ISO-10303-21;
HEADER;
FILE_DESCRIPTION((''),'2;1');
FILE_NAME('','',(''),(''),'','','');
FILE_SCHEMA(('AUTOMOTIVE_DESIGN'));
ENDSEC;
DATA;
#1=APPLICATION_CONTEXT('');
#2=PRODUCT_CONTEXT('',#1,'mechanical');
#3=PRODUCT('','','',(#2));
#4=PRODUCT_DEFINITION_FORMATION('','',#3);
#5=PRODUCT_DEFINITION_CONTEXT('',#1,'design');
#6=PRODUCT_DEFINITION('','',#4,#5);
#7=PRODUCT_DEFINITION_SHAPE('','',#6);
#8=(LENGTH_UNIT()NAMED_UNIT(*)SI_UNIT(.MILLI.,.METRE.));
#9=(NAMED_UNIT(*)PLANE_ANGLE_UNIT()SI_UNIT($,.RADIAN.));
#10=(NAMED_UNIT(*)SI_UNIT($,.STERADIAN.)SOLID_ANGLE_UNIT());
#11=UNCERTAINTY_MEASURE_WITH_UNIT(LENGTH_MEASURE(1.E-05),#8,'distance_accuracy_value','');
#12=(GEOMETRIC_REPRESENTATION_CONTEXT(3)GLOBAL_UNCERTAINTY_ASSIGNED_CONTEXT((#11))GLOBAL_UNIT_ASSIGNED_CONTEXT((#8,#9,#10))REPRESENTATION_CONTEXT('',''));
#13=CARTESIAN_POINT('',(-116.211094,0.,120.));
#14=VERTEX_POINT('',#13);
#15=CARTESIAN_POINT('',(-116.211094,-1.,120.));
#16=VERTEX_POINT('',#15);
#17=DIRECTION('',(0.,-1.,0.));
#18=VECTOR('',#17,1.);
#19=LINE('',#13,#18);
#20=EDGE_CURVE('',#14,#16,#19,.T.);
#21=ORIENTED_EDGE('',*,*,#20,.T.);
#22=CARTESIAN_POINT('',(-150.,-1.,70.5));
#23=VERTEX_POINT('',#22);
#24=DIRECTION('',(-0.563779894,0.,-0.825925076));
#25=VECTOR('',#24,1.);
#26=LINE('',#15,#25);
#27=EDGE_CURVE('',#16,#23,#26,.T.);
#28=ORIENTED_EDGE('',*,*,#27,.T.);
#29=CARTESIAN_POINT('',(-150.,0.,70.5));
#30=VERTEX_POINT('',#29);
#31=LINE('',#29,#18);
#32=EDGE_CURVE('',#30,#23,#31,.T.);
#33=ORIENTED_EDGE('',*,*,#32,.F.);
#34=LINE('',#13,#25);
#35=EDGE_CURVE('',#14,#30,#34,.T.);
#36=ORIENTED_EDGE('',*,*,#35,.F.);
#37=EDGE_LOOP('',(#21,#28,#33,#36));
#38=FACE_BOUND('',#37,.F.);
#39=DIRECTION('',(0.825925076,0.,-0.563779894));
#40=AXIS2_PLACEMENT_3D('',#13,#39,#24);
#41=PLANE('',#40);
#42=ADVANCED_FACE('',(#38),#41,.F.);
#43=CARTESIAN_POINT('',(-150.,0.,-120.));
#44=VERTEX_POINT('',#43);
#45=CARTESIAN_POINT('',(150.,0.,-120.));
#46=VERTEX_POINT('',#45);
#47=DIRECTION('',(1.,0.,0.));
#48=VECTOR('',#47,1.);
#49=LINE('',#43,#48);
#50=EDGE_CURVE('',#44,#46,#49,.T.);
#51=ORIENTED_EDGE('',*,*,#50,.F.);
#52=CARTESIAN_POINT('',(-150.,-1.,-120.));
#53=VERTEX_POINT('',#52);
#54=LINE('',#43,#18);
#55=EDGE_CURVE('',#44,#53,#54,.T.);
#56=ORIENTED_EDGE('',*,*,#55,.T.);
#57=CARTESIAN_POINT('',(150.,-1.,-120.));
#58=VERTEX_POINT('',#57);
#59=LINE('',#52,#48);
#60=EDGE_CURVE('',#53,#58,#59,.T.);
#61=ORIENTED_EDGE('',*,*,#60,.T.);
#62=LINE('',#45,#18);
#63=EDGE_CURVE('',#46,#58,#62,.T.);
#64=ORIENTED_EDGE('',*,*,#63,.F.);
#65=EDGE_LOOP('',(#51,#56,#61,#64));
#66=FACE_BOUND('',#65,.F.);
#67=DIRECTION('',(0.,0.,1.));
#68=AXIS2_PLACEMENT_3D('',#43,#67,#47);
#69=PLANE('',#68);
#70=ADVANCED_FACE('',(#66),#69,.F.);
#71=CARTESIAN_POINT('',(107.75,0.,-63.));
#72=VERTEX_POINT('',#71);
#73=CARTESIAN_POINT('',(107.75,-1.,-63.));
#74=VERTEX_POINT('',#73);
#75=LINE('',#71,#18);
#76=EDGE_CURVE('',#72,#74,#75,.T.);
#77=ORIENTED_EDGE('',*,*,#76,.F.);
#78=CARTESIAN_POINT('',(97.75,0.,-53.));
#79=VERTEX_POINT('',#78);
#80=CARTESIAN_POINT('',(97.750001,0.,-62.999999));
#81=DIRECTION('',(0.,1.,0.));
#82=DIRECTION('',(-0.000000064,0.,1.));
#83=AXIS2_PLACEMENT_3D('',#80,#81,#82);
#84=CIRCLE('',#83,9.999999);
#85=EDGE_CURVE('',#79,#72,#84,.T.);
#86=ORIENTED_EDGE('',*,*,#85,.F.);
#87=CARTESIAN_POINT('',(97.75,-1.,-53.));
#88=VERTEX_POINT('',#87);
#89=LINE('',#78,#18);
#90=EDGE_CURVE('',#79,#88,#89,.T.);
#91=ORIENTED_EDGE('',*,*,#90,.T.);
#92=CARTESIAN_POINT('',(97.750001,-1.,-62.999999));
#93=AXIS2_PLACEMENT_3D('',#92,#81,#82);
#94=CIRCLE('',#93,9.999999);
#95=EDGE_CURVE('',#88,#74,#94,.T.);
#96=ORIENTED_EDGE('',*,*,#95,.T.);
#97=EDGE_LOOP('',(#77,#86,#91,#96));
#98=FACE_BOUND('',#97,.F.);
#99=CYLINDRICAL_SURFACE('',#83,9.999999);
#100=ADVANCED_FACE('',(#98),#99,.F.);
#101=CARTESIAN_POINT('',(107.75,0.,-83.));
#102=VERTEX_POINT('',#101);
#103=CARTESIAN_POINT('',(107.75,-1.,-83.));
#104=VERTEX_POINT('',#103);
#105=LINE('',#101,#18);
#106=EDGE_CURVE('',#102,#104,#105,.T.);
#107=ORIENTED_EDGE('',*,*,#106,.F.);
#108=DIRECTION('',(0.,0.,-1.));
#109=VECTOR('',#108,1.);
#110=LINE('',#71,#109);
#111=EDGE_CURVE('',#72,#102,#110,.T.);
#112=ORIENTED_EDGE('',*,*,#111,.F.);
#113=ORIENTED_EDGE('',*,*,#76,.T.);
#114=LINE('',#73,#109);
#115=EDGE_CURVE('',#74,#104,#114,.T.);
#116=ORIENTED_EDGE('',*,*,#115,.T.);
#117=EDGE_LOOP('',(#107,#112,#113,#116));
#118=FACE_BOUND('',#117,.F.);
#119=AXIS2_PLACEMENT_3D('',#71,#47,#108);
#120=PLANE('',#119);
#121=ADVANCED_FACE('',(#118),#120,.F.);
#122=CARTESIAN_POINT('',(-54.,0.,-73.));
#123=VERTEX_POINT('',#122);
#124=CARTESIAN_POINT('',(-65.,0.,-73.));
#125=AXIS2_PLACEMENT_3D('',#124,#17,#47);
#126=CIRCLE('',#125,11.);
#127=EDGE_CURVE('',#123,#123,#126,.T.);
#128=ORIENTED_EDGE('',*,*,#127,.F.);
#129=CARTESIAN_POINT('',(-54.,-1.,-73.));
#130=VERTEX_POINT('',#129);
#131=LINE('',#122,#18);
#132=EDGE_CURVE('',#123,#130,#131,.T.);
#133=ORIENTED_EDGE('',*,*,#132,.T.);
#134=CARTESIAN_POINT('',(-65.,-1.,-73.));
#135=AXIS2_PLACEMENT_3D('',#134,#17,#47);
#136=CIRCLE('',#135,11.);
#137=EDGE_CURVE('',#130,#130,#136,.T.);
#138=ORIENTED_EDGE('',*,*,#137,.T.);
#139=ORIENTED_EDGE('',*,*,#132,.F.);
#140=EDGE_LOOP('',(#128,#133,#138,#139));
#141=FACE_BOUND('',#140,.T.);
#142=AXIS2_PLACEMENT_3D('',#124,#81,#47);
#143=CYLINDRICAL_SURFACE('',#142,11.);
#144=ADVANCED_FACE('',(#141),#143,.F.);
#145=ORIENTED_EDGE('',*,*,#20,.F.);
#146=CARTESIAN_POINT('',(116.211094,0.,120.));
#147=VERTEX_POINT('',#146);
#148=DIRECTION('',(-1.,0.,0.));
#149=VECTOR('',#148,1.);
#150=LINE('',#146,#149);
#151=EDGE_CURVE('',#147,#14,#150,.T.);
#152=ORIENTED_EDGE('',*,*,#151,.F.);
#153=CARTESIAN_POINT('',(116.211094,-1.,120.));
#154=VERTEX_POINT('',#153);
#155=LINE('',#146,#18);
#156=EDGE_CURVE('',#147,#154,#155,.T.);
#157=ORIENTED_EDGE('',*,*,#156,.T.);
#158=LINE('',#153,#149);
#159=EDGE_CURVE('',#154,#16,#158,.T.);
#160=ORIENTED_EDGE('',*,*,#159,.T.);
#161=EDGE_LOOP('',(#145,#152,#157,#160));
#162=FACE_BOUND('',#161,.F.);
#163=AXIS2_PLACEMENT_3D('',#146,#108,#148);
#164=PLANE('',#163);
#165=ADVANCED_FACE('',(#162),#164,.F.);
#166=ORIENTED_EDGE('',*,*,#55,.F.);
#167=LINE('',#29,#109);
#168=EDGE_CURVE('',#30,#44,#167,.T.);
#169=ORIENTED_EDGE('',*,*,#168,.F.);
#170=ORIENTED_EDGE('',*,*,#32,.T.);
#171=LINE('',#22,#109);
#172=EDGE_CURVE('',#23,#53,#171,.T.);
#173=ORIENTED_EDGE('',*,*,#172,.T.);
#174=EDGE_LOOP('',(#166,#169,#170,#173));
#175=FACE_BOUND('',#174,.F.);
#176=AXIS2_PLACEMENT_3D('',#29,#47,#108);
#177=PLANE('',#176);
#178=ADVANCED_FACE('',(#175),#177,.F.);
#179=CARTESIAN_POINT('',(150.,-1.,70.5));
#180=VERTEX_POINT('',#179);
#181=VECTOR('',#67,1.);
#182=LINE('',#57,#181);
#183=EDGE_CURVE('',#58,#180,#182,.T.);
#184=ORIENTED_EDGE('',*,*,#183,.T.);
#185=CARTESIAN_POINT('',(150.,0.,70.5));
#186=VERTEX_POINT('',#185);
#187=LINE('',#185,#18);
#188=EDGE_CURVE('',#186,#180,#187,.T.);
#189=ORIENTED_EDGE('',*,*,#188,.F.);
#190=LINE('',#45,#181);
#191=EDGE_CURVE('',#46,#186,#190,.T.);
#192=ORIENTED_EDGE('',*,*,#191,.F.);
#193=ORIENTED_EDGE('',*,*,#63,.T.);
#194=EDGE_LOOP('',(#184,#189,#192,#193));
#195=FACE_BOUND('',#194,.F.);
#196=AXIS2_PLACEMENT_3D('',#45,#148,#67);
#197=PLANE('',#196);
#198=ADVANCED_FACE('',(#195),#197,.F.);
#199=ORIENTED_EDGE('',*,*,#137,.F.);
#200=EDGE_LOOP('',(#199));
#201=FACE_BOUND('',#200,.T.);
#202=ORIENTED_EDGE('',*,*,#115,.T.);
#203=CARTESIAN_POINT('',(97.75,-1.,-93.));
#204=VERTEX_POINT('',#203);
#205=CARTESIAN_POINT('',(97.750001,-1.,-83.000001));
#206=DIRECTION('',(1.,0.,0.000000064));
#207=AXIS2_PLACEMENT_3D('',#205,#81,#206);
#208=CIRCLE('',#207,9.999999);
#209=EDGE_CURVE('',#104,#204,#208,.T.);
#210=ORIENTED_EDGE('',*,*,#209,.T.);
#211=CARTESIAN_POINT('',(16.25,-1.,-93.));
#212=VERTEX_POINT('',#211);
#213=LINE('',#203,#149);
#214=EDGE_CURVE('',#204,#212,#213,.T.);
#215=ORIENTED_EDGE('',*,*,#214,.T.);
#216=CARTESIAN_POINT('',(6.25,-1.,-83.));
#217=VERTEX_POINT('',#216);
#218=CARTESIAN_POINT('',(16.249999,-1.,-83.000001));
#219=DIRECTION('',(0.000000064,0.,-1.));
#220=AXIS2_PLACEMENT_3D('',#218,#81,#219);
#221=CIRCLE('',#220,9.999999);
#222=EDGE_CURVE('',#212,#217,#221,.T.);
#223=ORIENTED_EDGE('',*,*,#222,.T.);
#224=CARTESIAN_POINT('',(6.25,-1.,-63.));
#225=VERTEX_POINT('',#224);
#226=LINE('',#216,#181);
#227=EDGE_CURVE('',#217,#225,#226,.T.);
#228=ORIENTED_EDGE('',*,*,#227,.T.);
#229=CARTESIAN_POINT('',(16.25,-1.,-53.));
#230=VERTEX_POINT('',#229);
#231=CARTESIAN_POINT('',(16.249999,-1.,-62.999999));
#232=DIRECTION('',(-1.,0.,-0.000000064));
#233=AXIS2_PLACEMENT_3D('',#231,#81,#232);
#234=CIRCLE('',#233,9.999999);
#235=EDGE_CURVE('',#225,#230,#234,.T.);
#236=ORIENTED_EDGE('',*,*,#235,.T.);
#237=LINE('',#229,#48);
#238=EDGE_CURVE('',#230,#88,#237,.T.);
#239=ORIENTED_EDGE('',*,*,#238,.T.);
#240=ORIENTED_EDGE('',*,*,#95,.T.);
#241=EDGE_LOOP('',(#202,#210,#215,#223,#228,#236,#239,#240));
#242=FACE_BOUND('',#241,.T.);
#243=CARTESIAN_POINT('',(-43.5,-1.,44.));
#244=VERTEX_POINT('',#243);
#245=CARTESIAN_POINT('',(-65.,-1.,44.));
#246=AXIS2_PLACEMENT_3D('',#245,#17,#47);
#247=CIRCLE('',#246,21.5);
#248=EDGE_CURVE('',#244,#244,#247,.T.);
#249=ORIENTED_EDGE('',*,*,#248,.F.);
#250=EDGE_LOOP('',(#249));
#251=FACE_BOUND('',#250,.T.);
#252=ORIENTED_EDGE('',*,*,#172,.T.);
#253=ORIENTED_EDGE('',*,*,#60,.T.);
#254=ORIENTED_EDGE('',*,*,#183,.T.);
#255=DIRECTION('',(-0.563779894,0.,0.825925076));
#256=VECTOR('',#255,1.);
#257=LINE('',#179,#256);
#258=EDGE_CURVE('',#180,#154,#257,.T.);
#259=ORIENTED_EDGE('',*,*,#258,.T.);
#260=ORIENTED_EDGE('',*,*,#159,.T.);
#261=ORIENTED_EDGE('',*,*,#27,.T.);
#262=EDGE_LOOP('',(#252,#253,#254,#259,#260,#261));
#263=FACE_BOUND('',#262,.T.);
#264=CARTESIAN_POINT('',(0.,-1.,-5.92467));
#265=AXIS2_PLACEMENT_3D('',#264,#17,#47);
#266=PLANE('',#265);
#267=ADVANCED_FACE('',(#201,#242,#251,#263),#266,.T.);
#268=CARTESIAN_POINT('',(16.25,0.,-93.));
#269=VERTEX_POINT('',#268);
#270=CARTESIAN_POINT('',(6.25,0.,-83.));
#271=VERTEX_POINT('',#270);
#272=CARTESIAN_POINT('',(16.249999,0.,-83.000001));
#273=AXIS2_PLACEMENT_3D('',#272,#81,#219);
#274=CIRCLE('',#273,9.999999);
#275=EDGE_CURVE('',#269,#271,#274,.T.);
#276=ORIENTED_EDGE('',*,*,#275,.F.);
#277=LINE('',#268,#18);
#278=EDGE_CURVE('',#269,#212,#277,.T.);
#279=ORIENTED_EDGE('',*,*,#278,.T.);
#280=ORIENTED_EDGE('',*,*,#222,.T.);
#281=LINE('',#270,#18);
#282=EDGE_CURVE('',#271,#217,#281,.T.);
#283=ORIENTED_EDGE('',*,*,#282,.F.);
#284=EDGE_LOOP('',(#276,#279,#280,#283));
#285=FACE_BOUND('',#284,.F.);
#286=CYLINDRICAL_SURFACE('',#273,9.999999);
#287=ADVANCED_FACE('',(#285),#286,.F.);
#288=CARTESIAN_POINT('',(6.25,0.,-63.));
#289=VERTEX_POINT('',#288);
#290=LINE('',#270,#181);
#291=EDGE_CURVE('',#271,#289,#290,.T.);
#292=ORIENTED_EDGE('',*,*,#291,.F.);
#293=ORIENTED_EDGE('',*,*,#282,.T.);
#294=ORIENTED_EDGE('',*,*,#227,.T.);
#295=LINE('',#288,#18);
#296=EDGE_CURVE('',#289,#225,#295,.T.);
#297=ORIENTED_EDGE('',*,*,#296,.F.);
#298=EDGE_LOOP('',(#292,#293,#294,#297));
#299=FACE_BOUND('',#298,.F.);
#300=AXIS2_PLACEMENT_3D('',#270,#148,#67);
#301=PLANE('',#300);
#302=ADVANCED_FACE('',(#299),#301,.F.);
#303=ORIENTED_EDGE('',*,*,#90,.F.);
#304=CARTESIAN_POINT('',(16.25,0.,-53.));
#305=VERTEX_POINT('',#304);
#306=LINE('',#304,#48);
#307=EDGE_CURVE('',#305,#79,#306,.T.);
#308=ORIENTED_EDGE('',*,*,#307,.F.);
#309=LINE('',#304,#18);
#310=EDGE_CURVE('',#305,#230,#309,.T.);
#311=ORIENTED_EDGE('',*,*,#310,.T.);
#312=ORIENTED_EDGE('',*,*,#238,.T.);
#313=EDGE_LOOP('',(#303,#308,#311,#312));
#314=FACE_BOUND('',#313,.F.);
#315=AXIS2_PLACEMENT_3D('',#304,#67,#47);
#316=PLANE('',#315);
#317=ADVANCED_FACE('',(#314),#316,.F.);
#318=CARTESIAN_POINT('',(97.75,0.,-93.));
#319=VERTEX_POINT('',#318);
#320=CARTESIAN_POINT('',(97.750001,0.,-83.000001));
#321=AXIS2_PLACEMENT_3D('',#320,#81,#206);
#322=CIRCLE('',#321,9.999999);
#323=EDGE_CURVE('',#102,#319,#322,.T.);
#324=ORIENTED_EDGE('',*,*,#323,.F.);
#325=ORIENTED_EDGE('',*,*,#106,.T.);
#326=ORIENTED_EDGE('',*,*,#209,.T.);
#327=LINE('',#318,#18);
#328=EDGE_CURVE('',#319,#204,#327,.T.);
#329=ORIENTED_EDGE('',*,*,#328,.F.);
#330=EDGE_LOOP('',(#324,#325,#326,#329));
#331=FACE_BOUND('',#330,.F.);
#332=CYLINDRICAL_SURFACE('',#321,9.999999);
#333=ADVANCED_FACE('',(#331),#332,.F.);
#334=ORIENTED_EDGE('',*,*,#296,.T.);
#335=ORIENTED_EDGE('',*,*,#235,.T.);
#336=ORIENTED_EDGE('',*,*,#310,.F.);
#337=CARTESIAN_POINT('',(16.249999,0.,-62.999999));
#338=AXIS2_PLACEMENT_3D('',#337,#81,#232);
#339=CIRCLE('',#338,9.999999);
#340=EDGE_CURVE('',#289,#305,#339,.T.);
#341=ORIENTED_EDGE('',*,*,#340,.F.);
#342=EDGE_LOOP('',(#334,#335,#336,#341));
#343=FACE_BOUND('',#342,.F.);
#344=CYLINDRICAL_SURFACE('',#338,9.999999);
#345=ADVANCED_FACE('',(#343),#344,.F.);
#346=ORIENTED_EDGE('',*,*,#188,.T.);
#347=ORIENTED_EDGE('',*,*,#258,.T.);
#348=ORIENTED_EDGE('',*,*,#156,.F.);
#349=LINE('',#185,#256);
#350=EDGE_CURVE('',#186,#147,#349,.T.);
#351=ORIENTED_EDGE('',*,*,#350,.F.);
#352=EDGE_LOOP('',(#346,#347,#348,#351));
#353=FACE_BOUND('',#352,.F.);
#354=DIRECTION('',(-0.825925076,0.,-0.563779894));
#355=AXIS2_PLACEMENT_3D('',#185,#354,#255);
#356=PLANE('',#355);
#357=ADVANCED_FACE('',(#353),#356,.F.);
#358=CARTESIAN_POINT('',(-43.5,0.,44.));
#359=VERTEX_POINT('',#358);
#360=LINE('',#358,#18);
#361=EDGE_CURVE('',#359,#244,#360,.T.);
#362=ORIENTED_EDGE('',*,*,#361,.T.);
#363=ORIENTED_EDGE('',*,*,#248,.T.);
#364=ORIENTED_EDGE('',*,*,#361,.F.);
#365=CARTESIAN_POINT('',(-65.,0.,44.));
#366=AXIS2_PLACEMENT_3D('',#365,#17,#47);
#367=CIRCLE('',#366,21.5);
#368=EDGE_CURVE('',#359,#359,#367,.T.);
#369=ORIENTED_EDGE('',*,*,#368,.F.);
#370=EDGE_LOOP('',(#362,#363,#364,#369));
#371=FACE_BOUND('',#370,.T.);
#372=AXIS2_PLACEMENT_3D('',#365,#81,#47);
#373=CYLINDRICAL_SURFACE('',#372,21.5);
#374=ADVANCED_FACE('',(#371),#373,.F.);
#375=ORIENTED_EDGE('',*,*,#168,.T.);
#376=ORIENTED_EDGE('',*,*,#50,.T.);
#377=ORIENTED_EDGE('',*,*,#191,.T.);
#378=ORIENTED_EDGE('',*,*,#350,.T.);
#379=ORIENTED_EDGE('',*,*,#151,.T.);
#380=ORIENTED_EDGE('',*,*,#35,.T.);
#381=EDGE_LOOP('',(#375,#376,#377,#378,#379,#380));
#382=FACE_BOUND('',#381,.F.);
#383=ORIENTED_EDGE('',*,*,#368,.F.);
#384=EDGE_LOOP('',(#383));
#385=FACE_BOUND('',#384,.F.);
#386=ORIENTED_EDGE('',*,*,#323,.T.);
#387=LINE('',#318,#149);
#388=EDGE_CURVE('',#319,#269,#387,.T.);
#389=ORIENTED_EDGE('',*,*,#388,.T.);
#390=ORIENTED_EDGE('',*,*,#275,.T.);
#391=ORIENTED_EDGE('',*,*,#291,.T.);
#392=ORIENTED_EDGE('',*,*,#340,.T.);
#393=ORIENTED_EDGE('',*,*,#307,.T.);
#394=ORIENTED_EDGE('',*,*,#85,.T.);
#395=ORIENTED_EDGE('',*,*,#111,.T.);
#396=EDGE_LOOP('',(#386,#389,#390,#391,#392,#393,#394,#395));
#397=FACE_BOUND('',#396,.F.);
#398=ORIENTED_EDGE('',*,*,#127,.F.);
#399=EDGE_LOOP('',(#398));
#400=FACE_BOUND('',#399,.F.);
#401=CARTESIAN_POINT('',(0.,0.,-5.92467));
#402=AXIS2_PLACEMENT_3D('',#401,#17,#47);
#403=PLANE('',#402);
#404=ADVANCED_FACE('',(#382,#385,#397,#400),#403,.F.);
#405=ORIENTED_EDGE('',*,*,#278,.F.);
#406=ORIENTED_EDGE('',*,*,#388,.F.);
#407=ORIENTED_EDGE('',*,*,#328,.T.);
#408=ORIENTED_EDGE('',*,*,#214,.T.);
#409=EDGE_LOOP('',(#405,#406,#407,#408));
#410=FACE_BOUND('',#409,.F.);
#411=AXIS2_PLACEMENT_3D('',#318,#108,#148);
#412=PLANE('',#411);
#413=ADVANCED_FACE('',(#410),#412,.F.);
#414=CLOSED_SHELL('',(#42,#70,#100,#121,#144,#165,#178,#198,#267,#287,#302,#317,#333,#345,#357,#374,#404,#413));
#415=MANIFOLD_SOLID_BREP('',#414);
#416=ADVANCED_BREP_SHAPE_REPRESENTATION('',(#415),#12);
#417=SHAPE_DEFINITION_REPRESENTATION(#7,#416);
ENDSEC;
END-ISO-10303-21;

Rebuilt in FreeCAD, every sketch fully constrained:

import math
import FreeCAD as App
import Part
import Sketcher
from FreeCAD import Vector
Q = App.Units.Quantity


def add_polygon(sketch, points):
    """Adds a closed chain of lines whose ends are joined by coincident constraints."""
    first, n = sketch.GeometryCount, len(points)
    for a, b in zip(points, points[1:] + points[:1]):
        sketch.addGeometry(Part.LineSegment(App.Vector(*a, 0), App.Vector(*b, 0)), False)
    for i in range(n):
        sketch.addConstraint(Sketcher.Constraint("Coincident", first + i, 2, first + (i + 1) % n, 1))

doc = App.newDocument("Part")
params = doc.addObject("Spreadsheet::Sheet", "Params")
for row, (alias, value) in enumerate([
    ("sketch1_diameter", "22 mm"),
    ("sketch1_diameter2", "43 mm"),
    ("sketch1_radius", "9.999999 mm"),
    ("sketch1_width", "300 mm"),
    ("sketch1_height", "20 mm"),
    ("pad1_length", "1 mm"),
], start=1):
    params.set(f"A{row}", alias)
    params.set(f"B{row}", "=" + value)
    params.setAlias(f"B{row}", alias)

body = doc.addObject("PartDesign::Body", "Body")

# Sketch on XZ plane
sketch1 = doc.addObject("Sketcher::SketchObject", "Sketch")
body.addObject(sketch1)
sketch1.AttachmentSupport = (doc.XZ_Plane, [""])
sketch1.MapMode = "FlatFace"
add_polygon(sketch1, [(-150, -120), (150, -120), (150, 70.5), (116.211094, 120), (-116.211094, 120), (-150, 70.5)])  # lines 0-5
sketch1.addGeometry(Part.Circle(Vector(-65, -73, 0), Vector(0, 0, 1), 11), False)  # 6
sketch1.addGeometry(Part.LineSegment(Vector(107.75, -63, 0), Vector(107.75, -83, 0)), False)  # 7
sketch1.addGeometry(Part.ArcOfCircle(Part.Circle(Vector(97.750001, -83.000001, 0), Vector(0, 0, 1), 9.999999), math.radians(-90.000004), math.radians(0.000004)), False)  # 8
sketch1.addGeometry(Part.LineSegment(Vector(97.75, -93, 0), Vector(16.25, -93, 0)), False)  # 9
sketch1.addGeometry(Part.ArcOfCircle(Part.Circle(Vector(16.249999, -83.000001, 0), Vector(0, 0, 1), 9.999999), math.radians(179.999996), math.radians(270.000004)), False)  # 10
sketch1.addGeometry(Part.LineSegment(Vector(6.25, -83, 0), Vector(6.25, -63, 0)), False)  # 11
sketch1.addGeometry(Part.ArcOfCircle(Part.Circle(Vector(16.249999, -62.999999, 0), Vector(0, 0, 1), 9.999999), math.radians(89.999996), math.radians(180.000004)), False)  # 12
sketch1.addGeometry(Part.LineSegment(Vector(16.25, -53, 0), Vector(97.75, -53, 0)), False)  # 13
sketch1.addGeometry(Part.ArcOfCircle(Part.Circle(Vector(97.750001, -62.999999, 0), Vector(0, 0, 1), 9.999999), math.radians(-0.000004), math.radians(90.000004)), False)  # 14
sketch1.addGeometry(Part.Circle(Vector(-65, 44, 0), Vector(0, 0, 1), 21.5), False)  # 15
sketch1.addConstraint([
    Sketcher.Constraint("Tangent", 7, 2, 8, 2),
    Sketcher.Constraint("Tangent", 8, 1, 9, 1),
    Sketcher.Constraint("Tangent", 9, 2, 10, 2),
    Sketcher.Constraint("Tangent", 10, 1, 11, 1),
    Sketcher.Constraint("Tangent", 11, 2, 12, 2),
    Sketcher.Constraint("Tangent", 12, 1, 13, 1),
    Sketcher.Constraint("Tangent", 13, 2, 14, 2),
    Sketcher.Constraint("Tangent", 14, 1, 7, 1),
    Sketcher.Constraint("Horizontal", 0),
    Sketcher.Constraint("Vertical", 1),
    Sketcher.Constraint("Horizontal", 3),
    Sketcher.Constraint("Vertical", 5),
    Sketcher.Constraint("Vertical", 7),
    Sketcher.Constraint("Horizontal", 9),
    Sketcher.Constraint("Vertical", 11),
    Sketcher.Constraint("Horizontal", 13),
    Sketcher.Constraint("Equal", 8, 10),
    Sketcher.Constraint("Equal", 10, 12),
    Sketcher.Constraint("Equal", 12, 14),
    Sketcher.Constraint("Symmetric", 1, 2, 4, 2, -2),
    Sketcher.Constraint("Vertical", 6, 3, 15, 3),
    Sketcher.Constraint("Equal", 2, 4),
    Sketcher.Constraint("Diameter", 6, Q("22 mm")),
    Sketcher.Constraint("Diameter", 15, Q("43 mm")),
    Sketcher.Constraint("Radius", 8, Q("9.999999 mm")),
    Sketcher.Constraint("DistanceX", 0, 1, 0, 2, Q("300 mm")),
    Sketcher.Constraint("DistanceY", 7, 2, 7, 1, Q("20 mm")),
    Sketcher.Constraint("DistanceX", 9, 2, 9, 1, Q("81.5 mm")),
    Sketcher.Constraint("DistanceY", 1, 1, 1, 2, Q("190.5 mm")),
    Sketcher.Constraint("DistanceX", 6, 3, -1, 1, Q("65 mm")),
    Sketcher.Constraint("DistanceY", 6, 3, -1, 1, Q("73 mm")),
    Sketcher.Constraint("DistanceY", 8, 3, -1, 1, Q("83.000001 mm")),
    Sketcher.Constraint("DistanceY", -1, 1, 15, 3, Q("44 mm")),
    Sketcher.Constraint("DistanceY", 0, 2, -1, 1, Q("120 mm")),
    Sketcher.Constraint("DistanceY", -1, 1, 2, 2, Q("120 mm")),
    Sketcher.Constraint("DistanceX", -1, 1, 8, 3, Q("97.750001 mm")),
    Sketcher.Constraint("DistanceX", 3, 2, 3, 1, Q("232.422188 mm")),
])
sketch1.setExpression("Constraints[28]", "Params.sketch1_diameter")
sketch1.setExpression("Constraints[29]", "Params.sketch1_diameter2")
sketch1.setExpression("Constraints[30]", "Params.sketch1_radius")
sketch1.setExpression("Constraints[31]", "Params.sketch1_width")
sketch1.setExpression("Constraints[32]", "Params.sketch1_height")
pad1 = doc.addObject("PartDesign::Pad", "Pad")
body.addObject(pad1)
pad1.Profile = sketch1
pad1.setExpression("Length", "Params.pad1_length")

doc.recompute()
